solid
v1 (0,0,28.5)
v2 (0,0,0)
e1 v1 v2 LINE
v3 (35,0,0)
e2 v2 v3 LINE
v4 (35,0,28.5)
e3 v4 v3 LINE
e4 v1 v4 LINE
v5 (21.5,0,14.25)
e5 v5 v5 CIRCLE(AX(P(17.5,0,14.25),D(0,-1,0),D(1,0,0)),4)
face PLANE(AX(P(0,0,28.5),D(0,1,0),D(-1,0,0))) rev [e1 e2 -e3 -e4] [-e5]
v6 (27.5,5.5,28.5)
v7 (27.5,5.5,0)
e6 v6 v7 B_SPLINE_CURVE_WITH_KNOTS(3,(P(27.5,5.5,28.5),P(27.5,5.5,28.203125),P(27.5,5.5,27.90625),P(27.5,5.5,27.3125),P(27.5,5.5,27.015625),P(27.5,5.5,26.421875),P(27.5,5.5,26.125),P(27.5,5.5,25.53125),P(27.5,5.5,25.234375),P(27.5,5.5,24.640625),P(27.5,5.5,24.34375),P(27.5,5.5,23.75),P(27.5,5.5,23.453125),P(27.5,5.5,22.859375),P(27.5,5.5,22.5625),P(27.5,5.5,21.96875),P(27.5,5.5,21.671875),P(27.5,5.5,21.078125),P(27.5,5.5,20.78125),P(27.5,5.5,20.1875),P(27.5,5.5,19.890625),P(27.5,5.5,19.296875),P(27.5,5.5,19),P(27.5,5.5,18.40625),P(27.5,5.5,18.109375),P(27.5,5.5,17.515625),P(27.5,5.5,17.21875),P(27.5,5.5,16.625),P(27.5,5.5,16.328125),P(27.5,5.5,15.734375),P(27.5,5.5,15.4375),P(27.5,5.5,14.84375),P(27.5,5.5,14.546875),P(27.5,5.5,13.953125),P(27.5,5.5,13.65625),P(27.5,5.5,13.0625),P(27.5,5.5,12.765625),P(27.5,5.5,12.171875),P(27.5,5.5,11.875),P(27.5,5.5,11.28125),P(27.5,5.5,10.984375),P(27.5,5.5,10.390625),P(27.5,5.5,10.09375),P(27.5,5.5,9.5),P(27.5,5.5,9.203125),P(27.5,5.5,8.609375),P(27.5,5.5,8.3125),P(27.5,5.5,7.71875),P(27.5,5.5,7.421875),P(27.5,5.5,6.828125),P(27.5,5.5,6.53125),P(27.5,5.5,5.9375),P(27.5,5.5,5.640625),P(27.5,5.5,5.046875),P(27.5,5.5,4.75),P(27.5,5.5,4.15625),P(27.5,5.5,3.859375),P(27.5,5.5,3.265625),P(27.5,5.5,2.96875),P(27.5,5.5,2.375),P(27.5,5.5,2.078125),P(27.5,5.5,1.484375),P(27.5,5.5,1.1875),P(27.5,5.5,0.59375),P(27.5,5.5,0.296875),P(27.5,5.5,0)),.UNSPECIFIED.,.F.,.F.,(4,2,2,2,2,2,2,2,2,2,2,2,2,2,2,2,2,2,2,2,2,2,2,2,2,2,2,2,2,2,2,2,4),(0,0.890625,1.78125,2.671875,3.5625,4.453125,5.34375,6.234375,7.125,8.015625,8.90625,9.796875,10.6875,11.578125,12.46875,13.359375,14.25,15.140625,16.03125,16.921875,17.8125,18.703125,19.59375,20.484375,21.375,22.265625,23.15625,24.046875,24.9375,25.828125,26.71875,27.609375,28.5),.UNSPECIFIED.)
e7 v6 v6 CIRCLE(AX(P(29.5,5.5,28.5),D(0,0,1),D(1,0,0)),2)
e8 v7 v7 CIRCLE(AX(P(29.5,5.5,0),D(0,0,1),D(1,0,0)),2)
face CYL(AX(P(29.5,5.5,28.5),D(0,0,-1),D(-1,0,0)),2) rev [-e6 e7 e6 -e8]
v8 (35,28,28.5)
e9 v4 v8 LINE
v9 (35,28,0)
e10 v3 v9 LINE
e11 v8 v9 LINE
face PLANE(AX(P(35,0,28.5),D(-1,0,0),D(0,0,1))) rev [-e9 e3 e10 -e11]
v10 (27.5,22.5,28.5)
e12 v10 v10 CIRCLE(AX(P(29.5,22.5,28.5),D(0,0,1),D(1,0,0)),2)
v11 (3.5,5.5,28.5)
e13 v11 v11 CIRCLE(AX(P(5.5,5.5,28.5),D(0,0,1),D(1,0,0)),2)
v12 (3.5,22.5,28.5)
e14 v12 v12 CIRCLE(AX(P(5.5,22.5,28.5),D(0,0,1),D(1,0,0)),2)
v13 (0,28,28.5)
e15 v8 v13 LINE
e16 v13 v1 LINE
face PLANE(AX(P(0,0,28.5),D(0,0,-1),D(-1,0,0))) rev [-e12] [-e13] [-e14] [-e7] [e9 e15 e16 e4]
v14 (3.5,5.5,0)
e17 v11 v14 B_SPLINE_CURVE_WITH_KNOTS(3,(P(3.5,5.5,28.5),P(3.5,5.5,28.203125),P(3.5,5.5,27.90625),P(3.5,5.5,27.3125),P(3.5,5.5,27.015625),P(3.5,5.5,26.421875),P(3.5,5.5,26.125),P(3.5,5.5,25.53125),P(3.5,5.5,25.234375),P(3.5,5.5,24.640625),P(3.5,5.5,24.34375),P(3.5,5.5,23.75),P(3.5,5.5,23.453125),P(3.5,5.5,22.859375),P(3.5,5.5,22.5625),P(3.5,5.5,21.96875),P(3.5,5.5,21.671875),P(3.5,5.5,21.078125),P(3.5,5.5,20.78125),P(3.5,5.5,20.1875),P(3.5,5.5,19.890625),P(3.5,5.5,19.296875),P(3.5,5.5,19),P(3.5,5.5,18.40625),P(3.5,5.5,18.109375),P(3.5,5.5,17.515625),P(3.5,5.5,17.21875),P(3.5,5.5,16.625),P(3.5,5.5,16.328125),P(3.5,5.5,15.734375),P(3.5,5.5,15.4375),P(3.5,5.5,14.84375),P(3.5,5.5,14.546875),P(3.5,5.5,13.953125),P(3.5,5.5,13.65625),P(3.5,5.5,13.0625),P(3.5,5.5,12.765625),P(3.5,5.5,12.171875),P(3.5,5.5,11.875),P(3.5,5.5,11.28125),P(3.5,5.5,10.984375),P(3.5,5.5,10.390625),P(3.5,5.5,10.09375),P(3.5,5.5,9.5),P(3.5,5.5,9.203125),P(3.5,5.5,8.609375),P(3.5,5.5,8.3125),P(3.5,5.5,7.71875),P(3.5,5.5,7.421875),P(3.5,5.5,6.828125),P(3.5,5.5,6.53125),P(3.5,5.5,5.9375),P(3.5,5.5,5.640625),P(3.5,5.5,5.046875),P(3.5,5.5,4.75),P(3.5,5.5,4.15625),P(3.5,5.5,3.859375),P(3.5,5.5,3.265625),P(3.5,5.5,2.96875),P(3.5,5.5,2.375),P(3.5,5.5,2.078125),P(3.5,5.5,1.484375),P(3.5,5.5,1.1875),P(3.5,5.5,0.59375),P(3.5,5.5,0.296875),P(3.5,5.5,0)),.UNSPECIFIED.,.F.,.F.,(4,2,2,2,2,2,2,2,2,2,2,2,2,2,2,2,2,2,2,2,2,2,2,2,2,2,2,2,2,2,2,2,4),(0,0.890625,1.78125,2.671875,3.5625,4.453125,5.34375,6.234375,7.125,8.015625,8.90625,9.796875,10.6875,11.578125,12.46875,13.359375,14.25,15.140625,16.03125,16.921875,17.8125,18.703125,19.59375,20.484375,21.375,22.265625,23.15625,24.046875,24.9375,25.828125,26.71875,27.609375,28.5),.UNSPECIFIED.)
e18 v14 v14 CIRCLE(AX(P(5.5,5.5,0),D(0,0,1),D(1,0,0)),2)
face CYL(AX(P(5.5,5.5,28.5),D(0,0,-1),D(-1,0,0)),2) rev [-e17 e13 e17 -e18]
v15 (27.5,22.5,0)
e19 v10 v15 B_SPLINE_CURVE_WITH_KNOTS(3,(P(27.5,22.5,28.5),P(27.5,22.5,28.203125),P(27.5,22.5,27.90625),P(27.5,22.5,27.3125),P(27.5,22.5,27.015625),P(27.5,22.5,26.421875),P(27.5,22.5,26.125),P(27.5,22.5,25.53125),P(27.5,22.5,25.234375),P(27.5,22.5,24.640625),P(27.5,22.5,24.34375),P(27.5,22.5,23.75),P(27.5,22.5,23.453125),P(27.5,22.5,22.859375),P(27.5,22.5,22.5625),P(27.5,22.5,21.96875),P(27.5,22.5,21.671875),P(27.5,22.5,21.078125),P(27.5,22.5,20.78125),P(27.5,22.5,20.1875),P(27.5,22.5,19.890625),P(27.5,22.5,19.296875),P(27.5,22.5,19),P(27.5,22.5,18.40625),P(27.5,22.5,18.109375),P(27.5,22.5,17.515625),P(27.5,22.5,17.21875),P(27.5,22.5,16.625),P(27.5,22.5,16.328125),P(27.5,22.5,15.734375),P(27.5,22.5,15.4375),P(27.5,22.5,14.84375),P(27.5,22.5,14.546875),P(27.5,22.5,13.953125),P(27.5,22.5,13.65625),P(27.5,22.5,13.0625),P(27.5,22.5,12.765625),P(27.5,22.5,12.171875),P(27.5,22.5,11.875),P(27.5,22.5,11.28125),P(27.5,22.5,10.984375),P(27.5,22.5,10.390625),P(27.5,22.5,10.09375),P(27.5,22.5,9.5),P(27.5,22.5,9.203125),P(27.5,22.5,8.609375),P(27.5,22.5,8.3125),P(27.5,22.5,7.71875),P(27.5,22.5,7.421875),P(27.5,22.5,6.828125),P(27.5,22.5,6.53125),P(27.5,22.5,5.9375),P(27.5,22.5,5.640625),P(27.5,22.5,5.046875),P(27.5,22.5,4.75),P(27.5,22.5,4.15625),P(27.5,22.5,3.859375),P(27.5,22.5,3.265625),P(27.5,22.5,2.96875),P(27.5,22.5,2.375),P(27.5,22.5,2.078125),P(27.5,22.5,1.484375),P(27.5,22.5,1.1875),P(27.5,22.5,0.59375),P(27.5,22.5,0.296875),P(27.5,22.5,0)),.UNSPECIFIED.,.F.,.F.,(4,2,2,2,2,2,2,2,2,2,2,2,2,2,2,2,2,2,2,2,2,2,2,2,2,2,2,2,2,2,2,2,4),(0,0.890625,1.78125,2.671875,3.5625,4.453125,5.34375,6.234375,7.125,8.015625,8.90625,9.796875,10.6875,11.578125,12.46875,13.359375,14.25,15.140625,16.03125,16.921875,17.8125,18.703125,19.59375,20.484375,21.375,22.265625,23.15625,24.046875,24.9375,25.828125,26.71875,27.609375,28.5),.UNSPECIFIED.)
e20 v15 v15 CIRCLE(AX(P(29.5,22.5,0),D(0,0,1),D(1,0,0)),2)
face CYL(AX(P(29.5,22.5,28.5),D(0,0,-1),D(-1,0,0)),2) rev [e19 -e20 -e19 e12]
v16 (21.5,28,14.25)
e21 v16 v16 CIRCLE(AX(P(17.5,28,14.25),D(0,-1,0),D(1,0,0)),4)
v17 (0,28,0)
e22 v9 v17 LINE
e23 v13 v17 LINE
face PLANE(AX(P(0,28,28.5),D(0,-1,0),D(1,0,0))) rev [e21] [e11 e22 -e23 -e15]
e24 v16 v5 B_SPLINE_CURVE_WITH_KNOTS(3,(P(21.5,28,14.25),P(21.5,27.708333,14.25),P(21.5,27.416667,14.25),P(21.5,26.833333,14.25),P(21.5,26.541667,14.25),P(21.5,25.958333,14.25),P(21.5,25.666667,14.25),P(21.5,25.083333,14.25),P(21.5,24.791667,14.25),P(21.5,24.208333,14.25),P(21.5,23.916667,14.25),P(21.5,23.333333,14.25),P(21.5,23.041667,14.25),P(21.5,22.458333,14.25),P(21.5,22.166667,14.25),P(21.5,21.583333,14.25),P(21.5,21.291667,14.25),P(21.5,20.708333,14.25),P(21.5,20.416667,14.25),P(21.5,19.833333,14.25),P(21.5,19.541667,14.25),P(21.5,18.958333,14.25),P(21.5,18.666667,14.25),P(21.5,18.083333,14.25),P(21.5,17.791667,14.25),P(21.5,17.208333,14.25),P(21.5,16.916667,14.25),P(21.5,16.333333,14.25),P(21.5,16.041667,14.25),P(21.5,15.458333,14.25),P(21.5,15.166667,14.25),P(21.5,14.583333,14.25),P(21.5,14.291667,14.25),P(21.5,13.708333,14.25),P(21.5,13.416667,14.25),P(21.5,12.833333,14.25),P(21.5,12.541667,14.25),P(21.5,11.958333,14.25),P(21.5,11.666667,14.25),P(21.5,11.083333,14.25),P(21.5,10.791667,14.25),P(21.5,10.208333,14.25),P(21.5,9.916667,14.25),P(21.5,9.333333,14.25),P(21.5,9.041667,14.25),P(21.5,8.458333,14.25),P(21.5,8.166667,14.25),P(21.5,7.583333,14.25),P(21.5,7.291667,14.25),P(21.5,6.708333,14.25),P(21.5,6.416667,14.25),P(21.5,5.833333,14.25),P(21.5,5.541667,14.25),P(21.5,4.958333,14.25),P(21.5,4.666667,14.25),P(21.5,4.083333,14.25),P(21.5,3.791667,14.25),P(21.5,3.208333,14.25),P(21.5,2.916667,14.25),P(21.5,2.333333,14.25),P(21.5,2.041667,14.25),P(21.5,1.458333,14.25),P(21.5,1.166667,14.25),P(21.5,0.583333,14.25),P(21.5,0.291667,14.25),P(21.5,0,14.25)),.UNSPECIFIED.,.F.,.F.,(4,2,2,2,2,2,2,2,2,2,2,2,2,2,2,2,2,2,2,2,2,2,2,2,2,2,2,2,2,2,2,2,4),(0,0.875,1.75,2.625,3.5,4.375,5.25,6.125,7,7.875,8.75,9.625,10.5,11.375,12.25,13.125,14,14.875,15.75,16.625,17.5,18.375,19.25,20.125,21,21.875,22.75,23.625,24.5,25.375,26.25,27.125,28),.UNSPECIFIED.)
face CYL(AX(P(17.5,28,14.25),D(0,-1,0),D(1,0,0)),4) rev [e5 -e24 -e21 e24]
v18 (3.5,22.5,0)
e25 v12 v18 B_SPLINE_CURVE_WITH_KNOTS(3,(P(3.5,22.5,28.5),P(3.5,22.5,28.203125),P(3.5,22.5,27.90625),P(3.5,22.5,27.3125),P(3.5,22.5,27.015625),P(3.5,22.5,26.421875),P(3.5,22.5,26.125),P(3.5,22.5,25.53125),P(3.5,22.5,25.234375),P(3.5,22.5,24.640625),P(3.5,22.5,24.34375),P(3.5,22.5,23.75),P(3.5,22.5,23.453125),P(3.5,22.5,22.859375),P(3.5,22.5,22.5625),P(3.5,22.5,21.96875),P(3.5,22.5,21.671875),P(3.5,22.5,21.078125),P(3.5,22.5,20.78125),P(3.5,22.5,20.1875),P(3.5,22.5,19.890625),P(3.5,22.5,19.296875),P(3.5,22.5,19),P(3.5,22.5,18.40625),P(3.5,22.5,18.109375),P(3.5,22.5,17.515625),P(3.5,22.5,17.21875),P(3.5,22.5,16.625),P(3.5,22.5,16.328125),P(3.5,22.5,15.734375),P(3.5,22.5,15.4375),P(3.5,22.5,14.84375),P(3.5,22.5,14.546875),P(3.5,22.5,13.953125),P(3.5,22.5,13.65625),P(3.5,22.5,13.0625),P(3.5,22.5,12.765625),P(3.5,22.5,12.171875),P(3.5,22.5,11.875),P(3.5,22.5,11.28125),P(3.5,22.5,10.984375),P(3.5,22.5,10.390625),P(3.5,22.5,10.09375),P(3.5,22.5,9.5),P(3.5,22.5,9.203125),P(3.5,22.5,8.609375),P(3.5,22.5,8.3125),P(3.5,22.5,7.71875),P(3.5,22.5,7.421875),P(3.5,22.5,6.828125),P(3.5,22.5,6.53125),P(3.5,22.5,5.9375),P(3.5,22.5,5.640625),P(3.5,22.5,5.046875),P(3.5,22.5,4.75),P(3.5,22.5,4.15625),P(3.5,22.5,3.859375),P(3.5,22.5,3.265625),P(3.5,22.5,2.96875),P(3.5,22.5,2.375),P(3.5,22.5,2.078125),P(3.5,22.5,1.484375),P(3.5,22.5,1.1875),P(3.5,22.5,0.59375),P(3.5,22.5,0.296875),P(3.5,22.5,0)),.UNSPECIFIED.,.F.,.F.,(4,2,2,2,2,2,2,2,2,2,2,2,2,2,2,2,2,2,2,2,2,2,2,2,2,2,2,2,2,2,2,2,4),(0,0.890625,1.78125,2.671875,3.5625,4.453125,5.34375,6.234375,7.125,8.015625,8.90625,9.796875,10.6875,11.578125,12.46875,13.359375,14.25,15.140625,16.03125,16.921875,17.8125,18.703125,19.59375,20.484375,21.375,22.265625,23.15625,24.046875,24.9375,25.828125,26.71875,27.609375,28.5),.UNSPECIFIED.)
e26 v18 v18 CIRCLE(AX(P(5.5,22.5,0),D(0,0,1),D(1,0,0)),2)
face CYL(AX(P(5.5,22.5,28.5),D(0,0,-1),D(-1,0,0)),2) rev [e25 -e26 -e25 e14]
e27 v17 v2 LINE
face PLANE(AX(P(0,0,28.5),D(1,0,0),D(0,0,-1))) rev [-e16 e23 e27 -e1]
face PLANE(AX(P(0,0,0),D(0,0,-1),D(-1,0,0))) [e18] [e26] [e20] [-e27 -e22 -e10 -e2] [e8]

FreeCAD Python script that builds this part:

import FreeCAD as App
import Part
import Sketcher
Q = App.Units.Quantity


def add_polygon(sketch, points):
    """Adds a closed chain of lines whose ends are joined by coincident constraints."""
    first, n = sketch.GeometryCount, len(points)
    for a, b in zip(points, points[1:] + points[:1]):
        sketch.addGeometry(Part.LineSegment(App.Vector(*a, 0), App.Vector(*b, 0)), False)
    for i in range(n):
        sketch.addConstraint(Sketcher.Constraint("Coincident", first + i, 2, first + (i + 1) % n, 1))

doc = App.newDocument("Part")
body = doc.addObject("PartDesign::Body", "Body")

sketch1 = body.newObject("Sketcher::SketchObject", "Sketch")
sketch1.AttachmentSupport = (doc.getObject("XY_Plane"), [""])
sketch1.MapMode = "FlatFace"
add_polygon(sketch1, [(0, 28), (0, 0), (35, 0), (35, 28)])
sketch1.addGeometry(Part.Circle(App.Vector(5.5, 5.5, 0), App.Vector(0, 0, 1), 2), False)
sketch1.addGeometry(Part.Circle(App.Vector(29.5, 5.5, 0), App.Vector(0, 0, 1), 2), False)
sketch1.addGeometry(Part.Circle(App.Vector(5.5, 22.5, 0), App.Vector(0, 0, 1), 2), False)
sketch1.addGeometry(Part.Circle(App.Vector(29.5, 22.5, 0), App.Vector(0, 0, 1), 2), False)
sketch1.addConstraint(Sketcher.Constraint("Vertical", 0))
sketch1.addConstraint(Sketcher.Constraint("Horizontal", 1))
sketch1.addConstraint(Sketcher.Constraint("Vertical", 2))
sketch1.addConstraint(Sketcher.Constraint("Horizontal", 3))
sketch1.addConstraint(Sketcher.Constraint("Coincident", 0, 2, -1, 1))
sketch1.addConstraint(Sketcher.Constraint("Equal", 4, 5))
sketch1.addConstraint(Sketcher.Constraint("Equal", 5, 6))
sketch1.addConstraint(Sketcher.Constraint("Equal", 6, 7))
sketch1.addConstraint(Sketcher.Constraint("Horizontal", 4, 3, 5, 3))
sketch1.addConstraint(Sketcher.Constraint("Horizontal", 6, 3, 7, 3))
sketch1.addConstraint(Sketcher.Constraint("Vertical", 4, 3, 6, 3))
sketch1.addConstraint(Sketcher.Constraint("Vertical", 5, 3, 7, 3))
sketch1.addConstraint(Sketcher.Constraint("Diameter", 4, Q("4 mm")))
sketch1.addConstraint(Sketcher.Constraint("DistanceX", 1, 1, 1, 2, Q("35 mm")))
sketch1.addConstraint(Sketcher.Constraint("DistanceY", 0, 2, 0, 1, Q("28 mm")))
sketch1.addConstraint(Sketcher.Constraint("DistanceX", 4, 3, 5, 3, Q("24 mm")))
sketch1.addConstraint(Sketcher.Constraint("DistanceY", 4, 3, 6, 3, Q("17 mm")))
sketch1.addConstraint(Sketcher.Constraint("DistanceX", -1, 1, 4, 3, Q("5.5 mm")))
sketch1.addConstraint(Sketcher.Constraint("DistanceY", -1, 1, 4, 3, Q("5.5 mm")))
pad1 = body.newObject("PartDesign::Pad", "Pad")
pad1.Profile = sketch1
pad1.Length = 28.5

sketch2 = body.newObject("Sketcher::SketchObject", "Sketch001")
sketch2.AttachmentSupport = (doc.getObject("XZ_Plane"), [""])
sketch2.MapMode = "FlatFace"
sketch2.addGeometry(Part.Circle(App.Vector(17.5, 14.2, 0), App.Vector(0, 0, 1), 4), False)
sketch2.addConstraint(Sketcher.Constraint("Diameter", 0, Q("8 mm")))
sketch2.addConstraint(Sketcher.Constraint("DistanceX", -1, 1, 0, 3, Q("17.5 mm")))
sketch2.addConstraint(Sketcher.Constraint("DistanceY", -1, 1, 0, 3, Q("14.25 mm")))
pocket1 = body.newObject("PartDesign::Pocket", "Pocket")
pocket1.Profile = sketch2
pocket1.Type = "ThroughAll"

doc.recompute()
